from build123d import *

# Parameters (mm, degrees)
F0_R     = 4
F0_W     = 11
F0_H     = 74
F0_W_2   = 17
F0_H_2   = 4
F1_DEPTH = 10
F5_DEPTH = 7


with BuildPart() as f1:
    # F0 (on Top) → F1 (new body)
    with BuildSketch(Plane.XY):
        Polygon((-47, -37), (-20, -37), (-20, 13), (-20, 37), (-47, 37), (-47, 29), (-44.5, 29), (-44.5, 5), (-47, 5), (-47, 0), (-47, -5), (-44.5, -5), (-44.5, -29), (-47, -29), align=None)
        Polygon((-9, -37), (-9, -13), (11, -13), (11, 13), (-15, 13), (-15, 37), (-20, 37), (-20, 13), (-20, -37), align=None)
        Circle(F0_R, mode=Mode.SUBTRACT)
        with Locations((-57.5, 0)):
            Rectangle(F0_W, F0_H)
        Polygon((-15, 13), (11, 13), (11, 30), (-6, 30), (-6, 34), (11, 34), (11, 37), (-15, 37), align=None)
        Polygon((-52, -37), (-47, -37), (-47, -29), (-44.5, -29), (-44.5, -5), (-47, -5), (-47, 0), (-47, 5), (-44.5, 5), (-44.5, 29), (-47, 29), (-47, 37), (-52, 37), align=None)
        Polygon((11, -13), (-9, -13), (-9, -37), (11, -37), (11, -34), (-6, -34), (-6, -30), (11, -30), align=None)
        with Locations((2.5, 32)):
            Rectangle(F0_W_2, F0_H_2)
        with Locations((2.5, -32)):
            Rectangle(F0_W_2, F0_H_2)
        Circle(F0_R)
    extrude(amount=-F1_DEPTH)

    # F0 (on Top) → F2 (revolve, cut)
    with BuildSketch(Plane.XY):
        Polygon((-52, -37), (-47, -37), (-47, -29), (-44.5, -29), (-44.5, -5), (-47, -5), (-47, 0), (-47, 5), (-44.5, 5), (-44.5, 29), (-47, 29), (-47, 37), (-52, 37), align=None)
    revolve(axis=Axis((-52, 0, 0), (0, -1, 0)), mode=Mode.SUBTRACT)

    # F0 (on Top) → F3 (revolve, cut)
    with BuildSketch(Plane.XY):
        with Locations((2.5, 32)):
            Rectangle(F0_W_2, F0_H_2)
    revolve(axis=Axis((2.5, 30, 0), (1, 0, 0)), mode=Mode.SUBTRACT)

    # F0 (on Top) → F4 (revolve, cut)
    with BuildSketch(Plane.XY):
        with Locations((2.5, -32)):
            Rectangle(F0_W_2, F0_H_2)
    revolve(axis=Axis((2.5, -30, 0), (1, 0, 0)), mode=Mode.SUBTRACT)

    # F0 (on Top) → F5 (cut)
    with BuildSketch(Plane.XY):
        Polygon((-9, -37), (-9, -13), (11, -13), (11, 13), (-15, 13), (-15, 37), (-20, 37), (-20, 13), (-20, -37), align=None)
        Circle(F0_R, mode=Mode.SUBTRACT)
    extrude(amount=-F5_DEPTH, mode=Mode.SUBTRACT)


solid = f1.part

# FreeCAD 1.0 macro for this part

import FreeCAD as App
import Part
import Sketcher
from FreeCAD import Vector

doc = App.newDocument("Part")
body = doc.addObject("PartDesign::Body", "Body")

sketch1 = body.newObject("Sketcher::SketchObject", "Sketch")
sketch1.AttachmentSupport = (doc.getObject("XY_Plane"), [""])
sketch1.MapMode = "FlatFace"
sketch1.addGeometry([
    Part.LineSegment(Vector(11, 37, 0), Vector(-63, 37, 0)),
    Part.LineSegment(Vector(-63, 37, 0), Vector(-63, -37, 0)),
    Part.LineSegment(Vector(-63, -37, 0), Vector(11, -37, 0)),
    Part.LineSegment(Vector(11, -37, 0), Vector(11, 37, 0)),
], False)
sketch1.addConstraint([
    Sketcher.Constraint("Coincident", 0, 2, 1, 1),
    Sketcher.Constraint("Coincident", 1, 2, 2, 1),
    Sketcher.Constraint("Coincident", 2, 2, 3, 1),
    Sketcher.Constraint("Coincident", 3, 2, 0, 1),
    Sketcher.Constraint("Horizontal", 0),
    Sketcher.Constraint("Vertical", 1),
    Sketcher.Constraint("Horizontal", 2),
    Sketcher.Constraint("Vertical", 3),
    Sketcher.Constraint("Equal", 2, 1),
    Sketcher.Constraint("DistanceX", 0, 2, 0, 1, 74.0),
    Sketcher.Constraint("DistanceX", 0, 2, -1, 1, 63.0),
    Sketcher.Constraint("DistanceY", -1, 1, 0, 2, 37.0),
])
pad1 = body.newObject("PartDesign::Pad", "Pad")
pad1.Profile = sketch1
pad1.Length = 10
pad1.Reversed = True

sketch2 = body.newObject("Sketcher::SketchObject", "Sketch001")
sketch2.AttachmentSupport = (doc.getObject("XY_Plane"), [""])
sketch2.MapMode = "FlatFace"
sketch2.addGeometry([
    Part.LineSegment(Vector(-52, -37, 0), Vector(-47, -37, 0)),
    Part.LineSegment(Vector(-47, -37, 0), Vector(-47, -29, 0)),
    Part.LineSegment(Vector(-47, -29, 0), Vector(-44.5, -29, 0)),
    Part.LineSegment(Vector(-44.5, -29, 0), Vector(-44.5, -5, 0)),
    Part.LineSegment(Vector(-44.5, -5, 0), Vector(-47, -5, 0)),
    Part.LineSegment(Vector(-47, -5, 0), Vector(-47, 5, 0)),
    Part.LineSegment(Vector(-47, 5, 0), Vector(-44.5, 5, 0)),
    Part.LineSegment(Vector(-44.5, 5, 0), Vector(-44.5, 29, 0)),
    Part.LineSegment(Vector(-44.5, 29, 0), Vector(-47, 29, 0)),
    Part.LineSegment(Vector(-47, 29, 0), Vector(-47, 37, 0)),
    Part.LineSegment(Vector(-47, 37, 0), Vector(-52, 37, 0)),
    Part.LineSegment(Vector(-52, 37, 0), Vector(-52, -37, 0)),
], False)
sketch2.addGeometry(Part.LineSegment(Vector(-52, 37, 0), Vector(-52, -37, 0)), True)
sketch2.addConstraint([
    Sketcher.Constraint("Coincident", 0, 2, 1, 1),
    Sketcher.Constraint("Coincident", 1, 2, 2, 1),
    Sketcher.Constraint("Coincident", 2, 2, 3, 1),
    Sketcher.Constraint("Coincident", 3, 2, 4, 1),
    Sketcher.Constraint("Coincident", 4, 2, 5, 1),
    Sketcher.Constraint("Coincident", 5, 2, 6, 1),
    Sketcher.Constraint("Coincident", 6, 2, 7, 1),
    Sketcher.Constraint("Coincident", 7, 2, 8, 1),
    Sketcher.Constraint("Coincident", 8, 2, 9, 1),
    Sketcher.Constraint("Coincident", 9, 2, 10, 1),
    Sketcher.Constraint("Coincident", 10, 2, 11, 1),
    Sketcher.Constraint("Coincident", 11, 2, 0, 1),
    Sketcher.Constraint("Horizontal", 0),
    Sketcher.Constraint("Vertical", 1),
    Sketcher.Constraint("Horizontal", 2),
    Sketcher.Constraint("Vertical", 3),
    Sketcher.Constraint("Horizontal", 4),
    Sketcher.Constraint("Vertical", 5),
    Sketcher.Constraint("Horizontal", 6),
    Sketcher.Constraint("Vertical", 7),
    Sketcher.Constraint("Horizontal", 8),
    Sketcher.Constraint("Vertical", 9),
    Sketcher.Constraint("Horizontal", 10),
    Sketcher.Constraint("Vertical", 11),
    Sketcher.Constraint("Vertical", 12),
    Sketcher.Constraint("Coincident", 12, 1, 10, 2),
    Sketcher.Constraint("Symmetric", 3, 2, 6, 2, -1),
    Sketcher.Constraint("Symmetric", 1, 2, 8, 2, -1),
    Sketcher.Constraint("Horizontal", 0, 2, 12, 2),
    Sketcher.Constraint("Vertical", 1, 2, 4, 2),
    Sketcher.Constraint("Equal", 1, 9),
    Sketcher.Constraint("DistanceX", 0, 1, 0, 2, 5.0),
    Sketcher.Constraint("DistanceY", 1, 1, 1, 2, 8.0),
    Sketcher.Constraint("DistanceY", 3, 1, 3, 2, 24.0),
    Sketcher.Constraint("DistanceY", 5, 1, 5, 2, 10.0),
    Sketcher.Constraint("DistanceX", 2, 1, 2, 2, 2.5),
    Sketcher.Constraint("DistanceX", 0, 2, -1, 1, 47.0),
])
groove = body.newObject("PartDesign::Groove", "Groove")
groove.Profile = sketch2
groove.ReferenceAxis = (sketch2, ["Axis0"])
groove.Angle = 360

sketch3 = body.newObject("Sketcher::SketchObject", "Sketch002")
sketch3.AttachmentSupport = (doc.getObject("XY_Plane"), [""])
sketch3.MapMode = "FlatFace"
sketch3.addGeometry([
    Part.LineSegment(Vector(-6, 34, 0), Vector(-6, 30, 0)),
    Part.LineSegment(Vector(-6, 30, 0), Vector(11, 30, 0)),
    Part.LineSegment(Vector(11, 30, 0), Vector(11, 34, 0)),
    Part.LineSegment(Vector(11, 34, 0), Vector(-6, 34, 0)),
], False)
sketch3.addGeometry(Part.LineSegment(Vector(-6, 30, 0), Vector(11, 30, 0)), True)
sketch3.addConstraint([
    Sketcher.Constraint("Coincident", 0, 2, 1, 1),
    Sketcher.Constraint("Coincident", 1, 2, 2, 1),
    Sketcher.Constraint("Coincident", 2, 2, 3, 1),
    Sketcher.Constraint("Coincident", 3, 2, 0, 1),
    Sketcher.Constraint("Vertical", 0),
    Sketcher.Constraint("Horizontal", 1),
    Sketcher.Constraint("Vertical", 2),
    Sketcher.Constraint("Horizontal", 3),
    Sketcher.Constraint("Horizontal", 4),
    Sketcher.Constraint("Coincident", 4, 1, 0, 2),
    Sketcher.Constraint("Vertical", 2, 2, 4, 2),
    Sketcher.Constraint("DistanceX", 1, 1, 1, 2, 17.0),
    Sketcher.Constraint("DistanceY", 0, 2, 0, 1, 4.0),
    Sketcher.Constraint("DistanceX", 0, 2, -1, 1, 6.0),
    Sketcher.Constraint("DistanceY", -1, 1, 0, 2, 30.0),
])
groove2 = body.newObject("PartDesign::Groove", "Groove001")
groove2.Profile = sketch3
groove2.ReferenceAxis = (sketch3, ["Axis0"])
groove2.Angle = 360

sketch4 = body.newObject("Sketcher::SketchObject", "Sketch003")
sketch4.AttachmentSupport = (doc.getObject("XY_Plane"), [""])
sketch4.MapMode = "FlatFace"
sketch4.addGeometry([
    Part.LineSegment(Vector(-6, -30, 0), Vector(-6, -34, 0)),
    Part.LineSegment(Vector(-6, -34, 0), Vector(11, -34, 0)),
    Part.LineSegment(Vector(11, -34, 0), Vector(11, -30, 0)),
    Part.LineSegment(Vector(11, -30, 0), Vector(-6, -30, 0)),
], False)
sketch4.addGeometry(Part.LineSegment(Vector(-6, -30, 0), Vector(11, -30, 0)), True)
sketch4.addConstraint([
    Sketcher.Constraint("Coincident", 0, 2, 1, 1),
    Sketcher.Constraint("Coincident", 1, 2, 2, 1),
    Sketcher.Constraint("Coincident", 2, 2, 3, 1),
    Sketcher.Constraint("Coincident", 3, 2, 0, 1),
    Sketcher.Constraint("Vertical", 0),
    Sketcher.Constraint("Horizontal", 1),
    Sketcher.Constraint("Vertical", 2),
    Sketcher.Constraint("Horizontal", 3),
    Sketcher.Constraint("Horizontal", 4),
    Sketcher.Constraint("Coincident", 4, 1, 3, 2),
    Sketcher.Constraint("Vertical", 1, 2, 4, 2),
    Sketcher.Constraint("DistanceX", 1, 1, 1, 2, 17.0),
    Sketcher.Constraint("DistanceY", 0, 2, 0, 1, 4.0),
    Sketcher.Constraint("DistanceX", 0, 2, -1, 1, 6.0),
    Sketcher.Constraint("DistanceY", 0, 2, -1, 1, 34.0),
])
groove3 = body.newObject("PartDesign::Groove", "Groove002")
groove3.Profile = sketch4
groove3.ReferenceAxis = (sketch4, ["Axis0"])
groove3.Angle = 360

sketch5 = body.newObject("Sketcher::SketchObject", "Sketch004")
sketch5.AttachmentSupport = (doc.getObject("XY_Plane"), [""])
sketch5.MapMode = "FlatFace"
sketch5.addGeometry([
    Part.LineSegment(Vector(-9, -37, 0), Vector(-9, -13, 0)),
    Part.LineSegment(Vector(-9, -13, 0), Vector(11, -13, 0)),
    Part.LineSegment(Vector(11, -13, 0), Vector(11, 13, 0)),
    Part.LineSegment(Vector(11, 13, 0), Vector(-15, 13, 0)),
    Part.LineSegment(Vector(-15, 13, 0), Vector(-15, 37, 0)),
    Part.LineSegment(Vector(-15, 37, 0), Vector(-20, 37, 0)),
    Part.LineSegment(Vector(-20, 37, 0), Vector(-20, -37, 0)),
    Part.LineSegment(Vector(-20, -37, 0), Vector(-9, -37, 0)),
    Part.Circle(Vector(0, 0, 0), Vector(0, 0, 1), 4),
], False)
sketch5.addConstraint([
    Sketcher.Constraint("Coincident", 0, 2, 1, 1),
    Sketcher.Constraint("Coincident", 1, 2, 2, 1),
    Sketcher.Constraint("Coincident", 2, 2, 3, 1),
    Sketcher.Constraint("Coincident", 3, 2, 4, 1),
    Sketcher.Constraint("Coincident", 4, 2, 5, 1),
    Sketcher.Constraint("Coincident", 5, 2, 6, 1),
    Sketcher.Constraint("Coincident", 6, 2, 7, 1),
    Sketcher.Constraint("Coincident", 7, 2, 0, 1),
    Sketcher.Constraint("Vertical", 0),
    Sketcher.Constraint("Horizontal", 1),
    Sketcher.Constraint("Vertical", 2),
    Sketcher.Constraint("Horizontal", 3),
    Sketcher.Constraint("Vertical", 4),
    Sketcher.Constraint("Horizontal", 5),
    Sketcher.Constraint("Vertical", 6),
    Sketcher.Constraint("Horizontal", 7),
    Sketcher.Constraint("Coincident", 8, 3, -1, 1),
    Sketcher.Constraint("Equal", 3, 2),
    Sketcher.Constraint("Equal", 0, 4),
    Sketcher.Constraint("Diameter", 8, 8.0),
    Sketcher.Constraint("DistanceX", 1, 1, 1, 2, 20.0),
    Sketcher.Constraint("DistanceX", 3, 2, 3, 1, 26.0),
    Sketcher.Constraint("DistanceX", 5, 2, 5, 1, 5.0),
    Sketcher.Constraint("DistanceY", 0, 1, 0, 2, 24.0),
    Sketcher.Constraint("DistanceX", 0, 2, -1, 1, 9.0),
    Sketcher.Constraint("DistanceY", 0, 2, -1, 1, 13.0),
])
pocket1 = body.newObject("PartDesign::Pocket", "Pocket")
pocket1.Profile = sketch5
pocket1.Length = 7

doc.recompute()
